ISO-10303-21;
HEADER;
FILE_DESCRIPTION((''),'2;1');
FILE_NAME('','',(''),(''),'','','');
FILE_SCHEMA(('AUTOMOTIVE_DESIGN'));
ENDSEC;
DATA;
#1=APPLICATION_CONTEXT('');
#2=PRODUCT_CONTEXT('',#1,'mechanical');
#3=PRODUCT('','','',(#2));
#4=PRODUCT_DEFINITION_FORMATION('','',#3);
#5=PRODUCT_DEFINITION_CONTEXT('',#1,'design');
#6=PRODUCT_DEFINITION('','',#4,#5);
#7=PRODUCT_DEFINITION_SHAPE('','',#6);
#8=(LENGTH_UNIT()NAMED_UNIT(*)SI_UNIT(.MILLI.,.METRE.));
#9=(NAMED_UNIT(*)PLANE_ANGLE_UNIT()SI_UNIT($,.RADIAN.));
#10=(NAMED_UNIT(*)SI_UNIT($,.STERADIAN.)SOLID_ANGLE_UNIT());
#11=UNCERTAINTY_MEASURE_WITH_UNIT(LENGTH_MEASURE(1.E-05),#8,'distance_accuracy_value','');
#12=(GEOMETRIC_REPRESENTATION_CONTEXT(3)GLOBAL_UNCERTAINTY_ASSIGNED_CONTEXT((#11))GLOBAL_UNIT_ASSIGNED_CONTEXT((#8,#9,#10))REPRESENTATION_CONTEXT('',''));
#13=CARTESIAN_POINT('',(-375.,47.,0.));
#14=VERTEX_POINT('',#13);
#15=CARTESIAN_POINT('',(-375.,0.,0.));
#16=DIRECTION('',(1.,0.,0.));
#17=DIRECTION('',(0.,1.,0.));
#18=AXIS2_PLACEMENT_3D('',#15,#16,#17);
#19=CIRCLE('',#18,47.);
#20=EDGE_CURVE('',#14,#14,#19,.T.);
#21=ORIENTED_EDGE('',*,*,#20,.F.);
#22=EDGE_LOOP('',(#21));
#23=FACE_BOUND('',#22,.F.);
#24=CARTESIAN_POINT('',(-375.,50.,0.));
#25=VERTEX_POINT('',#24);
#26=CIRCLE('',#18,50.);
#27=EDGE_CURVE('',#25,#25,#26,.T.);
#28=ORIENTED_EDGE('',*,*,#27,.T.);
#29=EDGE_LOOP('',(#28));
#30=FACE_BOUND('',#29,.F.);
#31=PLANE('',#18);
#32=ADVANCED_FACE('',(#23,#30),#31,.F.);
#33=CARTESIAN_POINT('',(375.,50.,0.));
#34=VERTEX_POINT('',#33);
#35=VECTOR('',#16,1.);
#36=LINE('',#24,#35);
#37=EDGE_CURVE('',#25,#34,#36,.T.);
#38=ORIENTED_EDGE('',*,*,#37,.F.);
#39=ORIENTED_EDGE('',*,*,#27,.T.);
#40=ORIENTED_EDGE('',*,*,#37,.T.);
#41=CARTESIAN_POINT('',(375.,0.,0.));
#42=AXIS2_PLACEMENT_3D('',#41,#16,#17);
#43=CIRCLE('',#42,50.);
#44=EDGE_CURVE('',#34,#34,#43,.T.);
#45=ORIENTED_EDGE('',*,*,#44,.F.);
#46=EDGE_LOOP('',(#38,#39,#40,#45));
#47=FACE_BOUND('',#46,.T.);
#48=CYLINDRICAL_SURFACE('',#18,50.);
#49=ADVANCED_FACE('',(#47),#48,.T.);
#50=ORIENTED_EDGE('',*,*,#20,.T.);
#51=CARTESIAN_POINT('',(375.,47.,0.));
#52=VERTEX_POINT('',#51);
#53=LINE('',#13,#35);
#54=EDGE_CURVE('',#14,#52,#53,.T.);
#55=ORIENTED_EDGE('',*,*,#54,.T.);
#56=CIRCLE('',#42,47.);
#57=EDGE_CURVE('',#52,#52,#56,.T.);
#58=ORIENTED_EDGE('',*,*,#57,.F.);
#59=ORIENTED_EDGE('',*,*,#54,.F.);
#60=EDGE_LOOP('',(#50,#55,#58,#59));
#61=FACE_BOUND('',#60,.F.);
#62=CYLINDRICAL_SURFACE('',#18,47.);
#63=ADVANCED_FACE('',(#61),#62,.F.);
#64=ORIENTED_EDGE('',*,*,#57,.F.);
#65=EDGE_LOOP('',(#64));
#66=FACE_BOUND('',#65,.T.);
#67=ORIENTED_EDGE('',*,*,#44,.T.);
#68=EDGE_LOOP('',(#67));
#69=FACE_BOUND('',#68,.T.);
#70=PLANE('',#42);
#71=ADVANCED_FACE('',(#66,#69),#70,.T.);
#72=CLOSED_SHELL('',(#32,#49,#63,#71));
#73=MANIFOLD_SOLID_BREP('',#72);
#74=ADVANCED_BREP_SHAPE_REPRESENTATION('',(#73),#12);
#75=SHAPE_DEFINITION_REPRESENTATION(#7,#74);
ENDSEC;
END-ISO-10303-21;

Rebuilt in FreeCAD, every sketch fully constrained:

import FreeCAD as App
import Part
import Sketcher
from FreeCAD import Vector
Q = App.Units.Quantity

doc = App.newDocument("Part")
params = doc.addObject("Spreadsheet::Sheet", "Params")
for row, (alias, value) in enumerate([
    ("sketch1_width", "750 mm"),
    ("sketch1_height", "3 mm"),
    ("revolution_angle", "360 deg"),
], start=1):
    params.set(f"A{row}", alias)
    params.set(f"B{row}", "=" + value)
    params.setAlias(f"B{row}", alias)

body = doc.addObject("PartDesign::Body", "Body")

# Sketch on XY plane
sketch1 = doc.addObject("Sketcher::SketchObject", "Sketch")
body.addObject(sketch1)
sketch1.AttachmentSupport = (doc.XY_Plane, [""])
sketch1.MapMode = "FlatFace"
sketch1.addGeometry(Part.LineSegment(Vector(375, 50, 0), Vector(-375, 50, 0)), False)
sketch1.addGeometry(Part.LineSegment(Vector(-375, 50, 0), Vector(-375, 47, 0)), False)
sketch1.addGeometry(Part.LineSegment(Vector(-375, 47, 0), Vector(375, 47, 0)), False)
sketch1.addGeometry(Part.LineSegment(Vector(375, 47, 0), Vector(375, 50, 0)), False)
sketch1.addConstraint(Sketcher.Constraint("Coincident", 0, 2, 1, 1))
sketch1.addConstraint(Sketcher.Constraint("Coincident", 1, 2, 2, 1))
sketch1.addConstraint(Sketcher.Constraint("Coincident", 2, 2, 3, 1))
sketch1.addConstraint(Sketcher.Constraint("Coincident", 3, 2, 0, 1))
sketch1.addConstraint(Sketcher.Constraint("Horizontal", 0))
sketch1.addConstraint(Sketcher.Constraint("Vertical", 1))
sketch1.addConstraint(Sketcher.Constraint("Horizontal", 2))
sketch1.addConstraint(Sketcher.Constraint("Vertical", 3))
sketch1.addConstraint(Sketcher.Constraint("DistanceX", 0, 2, 0, 1, Q("750 mm")))
sketch1.addConstraint(Sketcher.Constraint("DistanceY", 1, 2, 1, 1, Q("3 mm")))
sketch1.addConstraint(Sketcher.Constraint("DistanceY", -1, 1, 0, 2, Q("50 mm")))
sketch1.addConstraint(Sketcher.Constraint("DistanceX", 0, 2, -1, 1, Q("375 mm")))
sketch1.setExpression("Constraints[8]", "Params.sketch1_width")
sketch1.setExpression("Constraints[9]", "Params.sketch1_height")
revolution = doc.addObject("PartDesign::Revolution", "Revolution")
body.addObject(revolution)
revolution.Profile = sketch1
revolution.ReferenceAxis = (sketch1, ["H_Axis"])
revolution.setExpression("Angle", "Params.revolution_angle")

doc.recompute()
